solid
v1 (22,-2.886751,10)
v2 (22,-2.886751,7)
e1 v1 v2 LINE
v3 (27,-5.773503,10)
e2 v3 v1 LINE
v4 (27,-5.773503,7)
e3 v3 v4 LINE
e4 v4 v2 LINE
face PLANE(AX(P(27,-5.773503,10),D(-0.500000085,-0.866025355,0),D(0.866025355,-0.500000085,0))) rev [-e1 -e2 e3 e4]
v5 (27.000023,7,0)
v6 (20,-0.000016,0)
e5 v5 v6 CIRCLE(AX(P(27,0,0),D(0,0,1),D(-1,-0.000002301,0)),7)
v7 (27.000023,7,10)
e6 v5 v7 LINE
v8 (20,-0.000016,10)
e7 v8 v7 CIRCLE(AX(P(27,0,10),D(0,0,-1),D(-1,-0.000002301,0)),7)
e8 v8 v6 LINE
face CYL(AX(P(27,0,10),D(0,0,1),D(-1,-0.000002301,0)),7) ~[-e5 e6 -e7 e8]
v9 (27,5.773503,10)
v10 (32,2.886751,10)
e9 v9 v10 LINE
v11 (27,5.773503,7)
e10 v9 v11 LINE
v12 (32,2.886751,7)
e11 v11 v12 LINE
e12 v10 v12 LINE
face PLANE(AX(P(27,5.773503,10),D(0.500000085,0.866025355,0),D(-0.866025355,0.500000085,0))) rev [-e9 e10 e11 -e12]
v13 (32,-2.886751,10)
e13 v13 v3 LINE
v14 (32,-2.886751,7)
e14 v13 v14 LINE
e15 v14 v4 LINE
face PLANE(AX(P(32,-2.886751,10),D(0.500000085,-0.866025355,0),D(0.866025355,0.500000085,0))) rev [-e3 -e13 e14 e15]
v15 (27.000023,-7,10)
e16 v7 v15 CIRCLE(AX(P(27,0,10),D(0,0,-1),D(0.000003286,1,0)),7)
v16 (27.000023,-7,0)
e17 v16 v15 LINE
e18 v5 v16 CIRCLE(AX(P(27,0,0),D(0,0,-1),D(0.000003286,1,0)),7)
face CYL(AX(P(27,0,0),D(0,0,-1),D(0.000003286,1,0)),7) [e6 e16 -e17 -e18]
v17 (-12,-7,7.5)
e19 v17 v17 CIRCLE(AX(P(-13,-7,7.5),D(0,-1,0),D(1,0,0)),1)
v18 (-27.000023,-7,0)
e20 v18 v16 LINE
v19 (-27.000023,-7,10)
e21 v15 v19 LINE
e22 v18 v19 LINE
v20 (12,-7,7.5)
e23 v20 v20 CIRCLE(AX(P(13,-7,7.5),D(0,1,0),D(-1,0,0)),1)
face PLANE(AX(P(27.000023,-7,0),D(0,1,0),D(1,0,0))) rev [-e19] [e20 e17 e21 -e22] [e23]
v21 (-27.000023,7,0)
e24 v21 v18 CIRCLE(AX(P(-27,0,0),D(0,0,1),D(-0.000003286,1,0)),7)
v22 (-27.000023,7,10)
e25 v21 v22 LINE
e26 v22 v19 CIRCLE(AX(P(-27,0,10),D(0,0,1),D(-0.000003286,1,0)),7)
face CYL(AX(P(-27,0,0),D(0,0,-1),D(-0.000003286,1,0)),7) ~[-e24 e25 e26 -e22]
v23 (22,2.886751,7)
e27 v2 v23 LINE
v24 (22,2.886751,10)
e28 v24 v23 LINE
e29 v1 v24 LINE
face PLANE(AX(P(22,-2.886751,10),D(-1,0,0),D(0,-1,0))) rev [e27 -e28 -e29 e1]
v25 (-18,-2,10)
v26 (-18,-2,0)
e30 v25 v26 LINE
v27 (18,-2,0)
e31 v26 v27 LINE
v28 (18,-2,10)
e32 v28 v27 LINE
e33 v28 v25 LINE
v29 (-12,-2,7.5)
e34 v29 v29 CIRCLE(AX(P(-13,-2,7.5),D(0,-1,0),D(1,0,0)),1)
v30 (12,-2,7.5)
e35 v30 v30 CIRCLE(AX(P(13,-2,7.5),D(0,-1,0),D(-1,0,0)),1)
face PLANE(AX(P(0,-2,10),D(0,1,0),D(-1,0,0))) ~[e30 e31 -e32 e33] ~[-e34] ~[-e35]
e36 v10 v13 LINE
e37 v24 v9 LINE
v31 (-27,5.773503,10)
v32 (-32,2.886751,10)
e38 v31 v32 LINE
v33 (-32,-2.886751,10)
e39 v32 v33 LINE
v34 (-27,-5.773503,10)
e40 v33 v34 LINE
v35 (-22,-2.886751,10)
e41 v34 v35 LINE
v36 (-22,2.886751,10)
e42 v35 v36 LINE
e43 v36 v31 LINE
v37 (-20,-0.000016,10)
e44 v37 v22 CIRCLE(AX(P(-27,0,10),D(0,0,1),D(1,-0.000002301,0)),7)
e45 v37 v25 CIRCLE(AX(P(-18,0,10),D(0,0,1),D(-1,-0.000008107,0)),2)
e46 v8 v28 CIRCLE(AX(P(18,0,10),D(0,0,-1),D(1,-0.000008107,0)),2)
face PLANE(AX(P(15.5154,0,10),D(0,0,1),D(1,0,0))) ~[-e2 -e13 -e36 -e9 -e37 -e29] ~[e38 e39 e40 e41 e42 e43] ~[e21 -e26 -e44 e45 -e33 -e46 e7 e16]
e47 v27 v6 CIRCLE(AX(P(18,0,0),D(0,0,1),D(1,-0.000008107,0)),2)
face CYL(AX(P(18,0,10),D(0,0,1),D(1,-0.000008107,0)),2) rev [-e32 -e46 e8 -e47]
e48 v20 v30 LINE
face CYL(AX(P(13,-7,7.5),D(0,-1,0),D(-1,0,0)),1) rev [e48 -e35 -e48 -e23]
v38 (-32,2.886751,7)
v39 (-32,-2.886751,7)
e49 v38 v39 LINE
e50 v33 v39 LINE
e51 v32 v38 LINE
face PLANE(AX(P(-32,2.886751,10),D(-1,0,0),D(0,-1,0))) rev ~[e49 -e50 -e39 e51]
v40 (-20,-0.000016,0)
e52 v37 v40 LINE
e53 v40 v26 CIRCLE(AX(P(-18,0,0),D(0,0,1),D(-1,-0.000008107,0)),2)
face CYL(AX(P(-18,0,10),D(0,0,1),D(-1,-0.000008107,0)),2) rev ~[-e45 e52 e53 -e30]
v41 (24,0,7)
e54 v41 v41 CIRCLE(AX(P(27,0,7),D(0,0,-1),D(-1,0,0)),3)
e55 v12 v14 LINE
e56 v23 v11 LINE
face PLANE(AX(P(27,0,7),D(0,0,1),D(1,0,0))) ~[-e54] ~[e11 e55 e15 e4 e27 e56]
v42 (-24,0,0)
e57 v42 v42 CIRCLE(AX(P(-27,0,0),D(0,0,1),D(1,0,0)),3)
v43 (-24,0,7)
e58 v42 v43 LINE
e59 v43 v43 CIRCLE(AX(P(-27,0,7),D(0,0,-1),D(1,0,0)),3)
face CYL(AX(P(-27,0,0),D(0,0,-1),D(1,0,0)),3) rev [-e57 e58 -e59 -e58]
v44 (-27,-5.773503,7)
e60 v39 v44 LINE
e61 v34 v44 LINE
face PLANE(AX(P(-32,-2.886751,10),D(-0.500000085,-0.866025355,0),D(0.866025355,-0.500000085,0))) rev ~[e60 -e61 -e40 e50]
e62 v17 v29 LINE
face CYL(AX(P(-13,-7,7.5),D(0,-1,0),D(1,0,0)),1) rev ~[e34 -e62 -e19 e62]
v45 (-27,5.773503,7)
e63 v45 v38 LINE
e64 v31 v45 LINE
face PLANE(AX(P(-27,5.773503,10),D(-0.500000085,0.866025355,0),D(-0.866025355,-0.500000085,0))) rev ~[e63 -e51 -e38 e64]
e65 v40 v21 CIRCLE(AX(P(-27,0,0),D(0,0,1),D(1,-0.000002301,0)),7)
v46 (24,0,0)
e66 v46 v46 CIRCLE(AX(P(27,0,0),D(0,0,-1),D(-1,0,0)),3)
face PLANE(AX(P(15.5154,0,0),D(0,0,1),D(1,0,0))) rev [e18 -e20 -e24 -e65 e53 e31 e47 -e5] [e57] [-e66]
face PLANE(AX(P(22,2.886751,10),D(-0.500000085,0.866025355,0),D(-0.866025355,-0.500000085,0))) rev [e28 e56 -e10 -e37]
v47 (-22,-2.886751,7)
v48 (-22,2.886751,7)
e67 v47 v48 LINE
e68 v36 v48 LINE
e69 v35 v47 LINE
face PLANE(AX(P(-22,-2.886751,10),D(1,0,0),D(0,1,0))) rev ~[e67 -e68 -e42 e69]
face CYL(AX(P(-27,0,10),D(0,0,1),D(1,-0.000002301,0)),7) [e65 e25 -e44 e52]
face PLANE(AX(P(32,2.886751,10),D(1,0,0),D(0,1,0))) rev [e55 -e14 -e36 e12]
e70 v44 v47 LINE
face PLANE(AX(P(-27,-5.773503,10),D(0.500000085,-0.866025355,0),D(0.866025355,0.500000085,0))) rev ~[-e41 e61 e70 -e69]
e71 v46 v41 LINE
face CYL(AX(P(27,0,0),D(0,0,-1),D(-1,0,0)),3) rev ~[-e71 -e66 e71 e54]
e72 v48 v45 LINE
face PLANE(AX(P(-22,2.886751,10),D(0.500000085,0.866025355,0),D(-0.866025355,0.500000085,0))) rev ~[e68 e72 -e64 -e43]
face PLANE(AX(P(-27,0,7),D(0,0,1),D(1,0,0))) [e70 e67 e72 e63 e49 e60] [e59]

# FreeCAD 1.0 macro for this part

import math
import FreeCAD as App
import Part
import Sketcher
from FreeCAD import Vector
Q = App.Units.Quantity

doc = App.newDocument("Part")
body = doc.addObject("PartDesign::Body", "Body")

# Sketch on XY plane
sketch1 = body.newObject("Sketcher::SketchObject", "Sketch")
sketch1.AttachmentSupport = (doc.getObject("XY_Plane"), [""])
sketch1.MapMode = "FlatFace"
sketch1.addGeometry([
    Part.ArcOfCircle(Part.Circle(Vector(-27, 0, 0), Vector(0, 0, 1), 7), math.radians(90), math.radians(270)),  # 0
    Part.LineSegment(Vector(-27, -7, 0), Vector(0, -7, 0)),  # 1
    Part.LineSegment(Vector(0, -7, 0), Vector(0, 7, 0)),  # 2
    Part.LineSegment(Vector(0, 7, 0), Vector(-27, 7, 0)),  # 3
    Part.Circle(Vector(-27, 0, 0), Vector(0, 0, 1), 3),  # 4
], False)
sketch1.addConstraint([
    Sketcher.Constraint("Coincident", 0, 2, 1, 1),
    Sketcher.Constraint("Coincident", 1, 2, 2, 1),
    Sketcher.Constraint("Coincident", 2, 2, 3, 1),
    Sketcher.Constraint("Coincident", 3, 2, 0, 1),
    Sketcher.Constraint("Horizontal", 1),
    Sketcher.Constraint("Vertical", 2),
    Sketcher.Constraint("Horizontal", 3),
    Sketcher.Constraint("Coincident", 4, 3, 0, 3),
    Sketcher.Constraint("Symmetric", 1, 2, 2, 2, -1, 1),
    Sketcher.Constraint("Vertical", 0, 2, 3, 2),
    Sketcher.Constraint("Diameter", 4, Q("6 mm")),
    Sketcher.Constraint("Radius", 0, Q("7 mm")),
    Sketcher.Constraint("DistanceX", 0, 3, -1, 1, Q("27 mm")),
    Sketcher.Constraint("DistanceX", 1, 1, 1, 2, Q("27.000023 mm")),
])
pad1 = body.newObject("PartDesign::Pad", "Pad")
pad1.Profile = sketch1
pad1.Length = 10

# Sketch on XZ plane
sketch2 = body.newObject("Sketcher::SketchObject", "Sketch001")
sketch2.AttachmentSupport = (doc.getObject("XZ_Plane"), [""])
sketch2.MapMode = "FlatFace"
sketch2.AttachmentOffset = App.Placement(Vector(0, 0, 7), App.Rotation())
sketch2.addGeometry(Part.Circle(Vector(-13, 7.5, 0), Vector(0, 0, 1), 1), False)
sketch2.addConstraint([
    Sketcher.Constraint("Diameter", 0, Q("2 mm")),
    Sketcher.Constraint("DistanceX", 0, 3, -1, 1, Q("13 mm")),
    Sketcher.Constraint("DistanceY", -1, 1, 0, 3, Q("7.5 mm")),
])
pocket1 = body.newObject("PartDesign::Pocket", "Pocket")
pocket1.Profile = sketch2
pocket1.Type = "ThroughAll"

# Sketch on XY plane
sketch3 = body.newObject("Sketcher::SketchObject", "Sketch002")
sketch3.AttachmentSupport = (doc.getObject("XY_Plane"), [""])
sketch3.MapMode = "FlatFace"
sketch3.AttachmentOffset = App.Placement(Vector(0, 0, 10), App.Rotation())
sketch3.addGeometry([
    Part.LineSegment(Vector(-22, 3, 0), Vector(-27, 6, 0)),  # 0
    Part.LineSegment(Vector(-27, 6, 0), Vector(-32, 3, 0)),  # 1
    Part.LineSegment(Vector(-32, 3, 0), Vector(-32, -3, 0)),  # 2
    Part.LineSegment(Vector(-32, -3, 0), Vector(-27, -6, 0)),  # 3
    Part.LineSegment(Vector(-27, -6, 0), Vector(-22, -3, 0)),  # 4
    Part.LineSegment(Vector(-22, -3, 0), Vector(-22, 3, 0)),  # 5
], False)
sketch3.addConstraint([
    Sketcher.Constraint("Coincident", 0, 2, 1, 1),
    Sketcher.Constraint("Coincident", 1, 2, 2, 1),
    Sketcher.Constraint("Coincident", 2, 2, 3, 1),
    Sketcher.Constraint("Coincident", 3, 2, 4, 1),
    Sketcher.Constraint("Coincident", 4, 2, 5, 1),
    Sketcher.Constraint("Coincident", 5, 2, 0, 1),
    Sketcher.Constraint("Vertical", 2),
    Sketcher.Constraint("Vertical", 5),
    Sketcher.Constraint("Symmetric", 0, 2, 3, 2, -1),
    Sketcher.Constraint("Parallel", 0, 3),
    Sketcher.Constraint("Parallel", 1, 4),
    Sketcher.Constraint("Horizontal", 2, 2, 4, 2),
    Sketcher.Constraint("Horizontal", 1, 2, 5, 2),
    Sketcher.Constraint("Angle", 0, Q("149.999994 deg")),
    Sketcher.Constraint("DistanceX", 0, 2, -1, 1, Q("27 mm")),
    Sketcher.Constraint("DistanceX", 1, 2, -1, 1, Q("32 mm")),
    Sketcher.Constraint("DistanceY", 2, 2, 2, 1, Q("5.773502 mm")),
])
pocket2 = body.newObject("PartDesign::Pocket", "Pocket001")
pocket2.Profile = sketch3
pocket2.Length = 3

# Sketch on XY plane
sketch4 = body.newObject("Sketcher::SketchObject", "Sketch003")
sketch4.AttachmentSupport = (doc.getObject("XY_Plane"), [""])
sketch4.MapMode = "FlatFace"
sketch4.AttachmentOffset = App.Placement(Vector(0, 0, 10), App.Rotation())
sketch4.addGeometry([
    Part.LineSegment(Vector(-18, -2, 0), Vector(0, -2, 0)),  # 0
    Part.LineSegment(Vector(0, -2, 0), Vector(0, 7, 0)),  # 1
    Part.LineSegment(Vector(0, 7, 0), Vector(-27, 7, 0)),  # 2
    Part.ArcOfCircle(Part.Circle(Vector(-27, 0, 0), Vector(0, 0, 1), 7), math.radians(0), math.radians(90)),  # 3
    Part.ArcOfCircle(Part.Circle(Vector(-18, 0, 0), Vector(0, 0, 1), 2), math.radians(-180), math.radians(-90)),  # 4
], False)
sketch4.addConstraint([
    Sketcher.Constraint("Coincident", 0, 2, 1, 1),
    Sketcher.Constraint("Coincident", 1, 2, 2, 1),
    Sketcher.Constraint("Coincident", 2, 2, 3, 2),
    Sketcher.Constraint("Coincident", 3, 1, 4, 1),
    Sketcher.Constraint("Tangent", 4, 2, 0, 1),
    Sketcher.Constraint("Horizontal", 0),
    Sketcher.Constraint("Vertical", 1),
    Sketcher.Constraint("Horizontal", 2),
    Sketcher.Constraint("PointOnObject", 3, 3, -1),
    Sketcher.Constraint("PointOnObject", 4, 3, -1),
    Sketcher.Constraint("PointOnObject", 0, 2, -2),
    Sketcher.Constraint("Radius", 3, Q("7 mm")),
    Sketcher.Constraint("Radius", 4, Q("2 mm")),
    Sketcher.Constraint("DistanceX", 0, 1, 0, 2, Q("18 mm")),
    Sketcher.Constraint("DistanceX", 2, 2, 2, 1, Q("27.000023 mm")),
    Sketcher.Constraint("DistanceY", 3, 1, 2, 2, Q("7.000016 mm")),
])
pocket3 = body.newObject("PartDesign::Pocket", "Pocket002")
pocket3.Profile = sketch4
pocket3.Type = "ThroughAll"
doc.recompute()

mirrored = body.newObject("PartDesign::Mirrored", "Mirrored")
mirrored.Originals = [pad1, pocket1, pocket2, pocket3]
mirrored.MirrorPlane = (doc.getObject("YZ_Plane"), [""])
body.Tip = mirrored

doc.recompute()
